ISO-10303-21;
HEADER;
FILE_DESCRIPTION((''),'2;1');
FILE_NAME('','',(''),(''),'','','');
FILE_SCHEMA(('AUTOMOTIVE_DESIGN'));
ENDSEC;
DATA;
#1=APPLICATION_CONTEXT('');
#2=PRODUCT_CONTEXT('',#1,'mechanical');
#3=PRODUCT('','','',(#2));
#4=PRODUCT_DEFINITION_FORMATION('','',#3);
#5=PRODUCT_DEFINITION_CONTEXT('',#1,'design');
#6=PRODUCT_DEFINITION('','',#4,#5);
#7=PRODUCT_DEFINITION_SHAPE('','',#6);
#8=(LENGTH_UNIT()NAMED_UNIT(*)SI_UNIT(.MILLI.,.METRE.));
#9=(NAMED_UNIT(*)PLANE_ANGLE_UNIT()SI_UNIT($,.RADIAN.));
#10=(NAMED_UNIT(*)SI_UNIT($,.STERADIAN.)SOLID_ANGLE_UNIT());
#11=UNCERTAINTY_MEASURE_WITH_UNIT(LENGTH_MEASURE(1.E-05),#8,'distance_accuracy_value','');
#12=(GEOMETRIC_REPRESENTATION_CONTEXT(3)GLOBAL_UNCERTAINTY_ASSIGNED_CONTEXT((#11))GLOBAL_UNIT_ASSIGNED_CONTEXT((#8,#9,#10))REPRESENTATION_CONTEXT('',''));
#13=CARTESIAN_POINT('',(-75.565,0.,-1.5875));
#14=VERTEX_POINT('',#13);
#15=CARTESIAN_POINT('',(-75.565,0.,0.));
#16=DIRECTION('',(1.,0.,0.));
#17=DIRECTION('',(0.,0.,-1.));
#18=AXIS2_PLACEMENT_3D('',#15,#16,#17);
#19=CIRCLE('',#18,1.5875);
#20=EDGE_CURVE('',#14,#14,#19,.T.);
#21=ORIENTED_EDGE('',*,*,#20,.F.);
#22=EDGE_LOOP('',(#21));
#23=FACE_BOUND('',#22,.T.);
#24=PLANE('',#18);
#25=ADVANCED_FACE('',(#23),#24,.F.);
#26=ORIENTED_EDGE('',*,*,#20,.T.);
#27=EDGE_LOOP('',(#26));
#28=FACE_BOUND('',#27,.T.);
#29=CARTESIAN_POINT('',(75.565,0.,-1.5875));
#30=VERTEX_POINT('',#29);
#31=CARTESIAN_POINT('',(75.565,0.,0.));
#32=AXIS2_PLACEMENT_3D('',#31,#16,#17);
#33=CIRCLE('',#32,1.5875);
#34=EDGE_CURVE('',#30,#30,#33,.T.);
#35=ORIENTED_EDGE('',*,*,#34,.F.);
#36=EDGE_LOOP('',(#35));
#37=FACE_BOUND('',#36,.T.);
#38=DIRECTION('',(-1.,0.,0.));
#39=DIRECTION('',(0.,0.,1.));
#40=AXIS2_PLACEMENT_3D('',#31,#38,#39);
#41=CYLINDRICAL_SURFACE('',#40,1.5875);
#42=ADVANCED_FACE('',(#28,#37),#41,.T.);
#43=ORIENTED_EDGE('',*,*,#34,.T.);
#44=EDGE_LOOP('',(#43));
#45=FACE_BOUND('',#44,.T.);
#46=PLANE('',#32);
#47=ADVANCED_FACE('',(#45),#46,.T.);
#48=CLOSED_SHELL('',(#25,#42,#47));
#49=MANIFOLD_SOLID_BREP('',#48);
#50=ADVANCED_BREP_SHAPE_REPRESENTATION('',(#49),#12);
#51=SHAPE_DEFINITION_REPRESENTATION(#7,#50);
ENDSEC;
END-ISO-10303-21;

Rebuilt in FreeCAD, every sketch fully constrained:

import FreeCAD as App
import Part
import Sketcher
Q = App.Units.Quantity

doc = App.newDocument("Part")
params = doc.addObject("Spreadsheet::Sheet", "Params")
for row, (alias, value) in enumerate([
    ("sketch1_diameter", "0.125 in"),
    ("pad1_length", "5.95 in"),
], start=1):
    params.set(f"A{row}", alias)
    params.set(f"B{row}", "=" + value)
    params.setAlias(f"B{row}", alias)

body = doc.addObject("PartDesign::Body", "Body")

# Sketch on YZ plane
sketch1 = body.newObject("Sketcher::SketchObject", "Sketch")
sketch1.AttachmentSupport = (doc.getObject("YZ_Plane"), [""])
sketch1.MapMode = "FlatFace"
sketch1.addGeometry(Part.Circle(App.Vector(0, 0, 0), App.Vector(0, 0, 1), 1.6), False)
sketch1.addConstraint([
    Sketcher.Constraint("Coincident", 0, 3, -1, 1),
    Sketcher.Constraint("Diameter", 0, Q("0.125 in")),
])
sketch1.setExpression("Constraints[1]", "Params.sketch1_diameter")
pad1 = body.newObject("PartDesign::Pad", "Pad")
pad1.Profile = sketch1
pad1.setExpression("Length", "Params.pad1_length")
pad1.Midplane = True

doc.recompute()
